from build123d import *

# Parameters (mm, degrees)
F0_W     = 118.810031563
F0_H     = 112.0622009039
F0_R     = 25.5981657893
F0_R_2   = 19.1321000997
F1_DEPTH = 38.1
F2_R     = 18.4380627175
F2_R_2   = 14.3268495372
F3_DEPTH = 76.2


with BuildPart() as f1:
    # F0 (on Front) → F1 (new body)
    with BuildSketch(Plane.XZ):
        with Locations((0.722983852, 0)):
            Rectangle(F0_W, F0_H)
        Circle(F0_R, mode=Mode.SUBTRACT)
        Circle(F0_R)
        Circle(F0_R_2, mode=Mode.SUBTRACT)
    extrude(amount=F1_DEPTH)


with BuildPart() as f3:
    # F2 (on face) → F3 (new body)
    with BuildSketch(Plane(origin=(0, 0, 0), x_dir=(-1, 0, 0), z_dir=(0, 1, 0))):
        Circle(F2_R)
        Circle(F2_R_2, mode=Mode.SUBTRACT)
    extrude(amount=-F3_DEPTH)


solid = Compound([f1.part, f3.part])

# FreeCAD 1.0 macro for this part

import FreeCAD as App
import Part
import Sketcher
Q = App.Units.Quantity

doc = App.newDocument("Part")
body = doc.addObject("PartDesign::Body", "Body")

sketch1 = body.newObject("Sketcher::SketchObject", "Sketch")
sketch1.AttachmentSupport = (doc.getObject("XZ_Plane"), [""])
sketch1.MapMode = "FlatFace"
sketch1.addGeometry([
    Part.LineSegment(App.Vector(-59, 56, 0), App.Vector(-59, -56, 0)),
    Part.LineSegment(App.Vector(-59, -56, 0), App.Vector(60, -56, 0)),
    Part.LineSegment(App.Vector(60, -56, 0), App.Vector(60, 56, 0)),
    Part.LineSegment(App.Vector(60, 56, 0), App.Vector(-59, 56, 0)),
    Part.Circle(App.Vector(0, 0, 0), App.Vector(0, 0, 1), 19),
], False)
sketch1.addConstraint([
    Sketcher.Constraint("Coincident", 0, 2, 1, 1),
    Sketcher.Constraint("Coincident", 1, 2, 2, 1),
    Sketcher.Constraint("Coincident", 2, 2, 3, 1),
    Sketcher.Constraint("Coincident", 3, 2, 0, 1),
    Sketcher.Constraint("Vertical", 0),
    Sketcher.Constraint("Horizontal", 1),
    Sketcher.Constraint("Vertical", 2),
    Sketcher.Constraint("Horizontal", 3),
    Sketcher.Constraint("Coincident", 4, 3, -1, 1),
    Sketcher.Constraint("Diameter", 4, 38.2642),
    Sketcher.Constraint("DistanceY", 0, 2, 0, 1, 112.062201),
    Sketcher.Constraint("DistanceX", 1, 1, 1, 2, 118.810032),
    Sketcher.Constraint("DistanceY", 0, 2, -1, 1, 56.0311),
    Sketcher.Constraint("DistanceX", -1, 1, 1, 2, 60.128),
])
pad1 = body.newObject("PartDesign::Pad", "Pad")
pad1.Profile = sketch1
pad1.Length = Q("1.5 in")
body2 = doc.addObject("PartDesign::Body", "Body001")

sketch2 = body2.newObject("Sketcher::SketchObject", "Sketch001")
sketch2.AttachmentSupport = (doc.getObject("XZ_Plane001"), [""])
sketch2.MapMode = "FlatFace"
sketch2.addGeometry([
    Part.Circle(App.Vector(0, 0, 0), App.Vector(0, 0, 1), 18),
    Part.Circle(App.Vector(0, 0, 0), App.Vector(0, 0, 1), 14),
], False)
sketch2.addConstraint([
    Sketcher.Constraint("Coincident", 0, 3, -1, 1),
    Sketcher.Constraint("Coincident", 1, 3, -1, 1),
    Sketcher.Constraint("Diameter", 1, 28.653699),
    Sketcher.Constraint("Diameter", 0, 36.876125),
])
pad2 = body2.newObject("PartDesign::Pad", "Pad001")
pad2.Profile = sketch2
pad2.Length = Q("3 in")

doc.recompute()
